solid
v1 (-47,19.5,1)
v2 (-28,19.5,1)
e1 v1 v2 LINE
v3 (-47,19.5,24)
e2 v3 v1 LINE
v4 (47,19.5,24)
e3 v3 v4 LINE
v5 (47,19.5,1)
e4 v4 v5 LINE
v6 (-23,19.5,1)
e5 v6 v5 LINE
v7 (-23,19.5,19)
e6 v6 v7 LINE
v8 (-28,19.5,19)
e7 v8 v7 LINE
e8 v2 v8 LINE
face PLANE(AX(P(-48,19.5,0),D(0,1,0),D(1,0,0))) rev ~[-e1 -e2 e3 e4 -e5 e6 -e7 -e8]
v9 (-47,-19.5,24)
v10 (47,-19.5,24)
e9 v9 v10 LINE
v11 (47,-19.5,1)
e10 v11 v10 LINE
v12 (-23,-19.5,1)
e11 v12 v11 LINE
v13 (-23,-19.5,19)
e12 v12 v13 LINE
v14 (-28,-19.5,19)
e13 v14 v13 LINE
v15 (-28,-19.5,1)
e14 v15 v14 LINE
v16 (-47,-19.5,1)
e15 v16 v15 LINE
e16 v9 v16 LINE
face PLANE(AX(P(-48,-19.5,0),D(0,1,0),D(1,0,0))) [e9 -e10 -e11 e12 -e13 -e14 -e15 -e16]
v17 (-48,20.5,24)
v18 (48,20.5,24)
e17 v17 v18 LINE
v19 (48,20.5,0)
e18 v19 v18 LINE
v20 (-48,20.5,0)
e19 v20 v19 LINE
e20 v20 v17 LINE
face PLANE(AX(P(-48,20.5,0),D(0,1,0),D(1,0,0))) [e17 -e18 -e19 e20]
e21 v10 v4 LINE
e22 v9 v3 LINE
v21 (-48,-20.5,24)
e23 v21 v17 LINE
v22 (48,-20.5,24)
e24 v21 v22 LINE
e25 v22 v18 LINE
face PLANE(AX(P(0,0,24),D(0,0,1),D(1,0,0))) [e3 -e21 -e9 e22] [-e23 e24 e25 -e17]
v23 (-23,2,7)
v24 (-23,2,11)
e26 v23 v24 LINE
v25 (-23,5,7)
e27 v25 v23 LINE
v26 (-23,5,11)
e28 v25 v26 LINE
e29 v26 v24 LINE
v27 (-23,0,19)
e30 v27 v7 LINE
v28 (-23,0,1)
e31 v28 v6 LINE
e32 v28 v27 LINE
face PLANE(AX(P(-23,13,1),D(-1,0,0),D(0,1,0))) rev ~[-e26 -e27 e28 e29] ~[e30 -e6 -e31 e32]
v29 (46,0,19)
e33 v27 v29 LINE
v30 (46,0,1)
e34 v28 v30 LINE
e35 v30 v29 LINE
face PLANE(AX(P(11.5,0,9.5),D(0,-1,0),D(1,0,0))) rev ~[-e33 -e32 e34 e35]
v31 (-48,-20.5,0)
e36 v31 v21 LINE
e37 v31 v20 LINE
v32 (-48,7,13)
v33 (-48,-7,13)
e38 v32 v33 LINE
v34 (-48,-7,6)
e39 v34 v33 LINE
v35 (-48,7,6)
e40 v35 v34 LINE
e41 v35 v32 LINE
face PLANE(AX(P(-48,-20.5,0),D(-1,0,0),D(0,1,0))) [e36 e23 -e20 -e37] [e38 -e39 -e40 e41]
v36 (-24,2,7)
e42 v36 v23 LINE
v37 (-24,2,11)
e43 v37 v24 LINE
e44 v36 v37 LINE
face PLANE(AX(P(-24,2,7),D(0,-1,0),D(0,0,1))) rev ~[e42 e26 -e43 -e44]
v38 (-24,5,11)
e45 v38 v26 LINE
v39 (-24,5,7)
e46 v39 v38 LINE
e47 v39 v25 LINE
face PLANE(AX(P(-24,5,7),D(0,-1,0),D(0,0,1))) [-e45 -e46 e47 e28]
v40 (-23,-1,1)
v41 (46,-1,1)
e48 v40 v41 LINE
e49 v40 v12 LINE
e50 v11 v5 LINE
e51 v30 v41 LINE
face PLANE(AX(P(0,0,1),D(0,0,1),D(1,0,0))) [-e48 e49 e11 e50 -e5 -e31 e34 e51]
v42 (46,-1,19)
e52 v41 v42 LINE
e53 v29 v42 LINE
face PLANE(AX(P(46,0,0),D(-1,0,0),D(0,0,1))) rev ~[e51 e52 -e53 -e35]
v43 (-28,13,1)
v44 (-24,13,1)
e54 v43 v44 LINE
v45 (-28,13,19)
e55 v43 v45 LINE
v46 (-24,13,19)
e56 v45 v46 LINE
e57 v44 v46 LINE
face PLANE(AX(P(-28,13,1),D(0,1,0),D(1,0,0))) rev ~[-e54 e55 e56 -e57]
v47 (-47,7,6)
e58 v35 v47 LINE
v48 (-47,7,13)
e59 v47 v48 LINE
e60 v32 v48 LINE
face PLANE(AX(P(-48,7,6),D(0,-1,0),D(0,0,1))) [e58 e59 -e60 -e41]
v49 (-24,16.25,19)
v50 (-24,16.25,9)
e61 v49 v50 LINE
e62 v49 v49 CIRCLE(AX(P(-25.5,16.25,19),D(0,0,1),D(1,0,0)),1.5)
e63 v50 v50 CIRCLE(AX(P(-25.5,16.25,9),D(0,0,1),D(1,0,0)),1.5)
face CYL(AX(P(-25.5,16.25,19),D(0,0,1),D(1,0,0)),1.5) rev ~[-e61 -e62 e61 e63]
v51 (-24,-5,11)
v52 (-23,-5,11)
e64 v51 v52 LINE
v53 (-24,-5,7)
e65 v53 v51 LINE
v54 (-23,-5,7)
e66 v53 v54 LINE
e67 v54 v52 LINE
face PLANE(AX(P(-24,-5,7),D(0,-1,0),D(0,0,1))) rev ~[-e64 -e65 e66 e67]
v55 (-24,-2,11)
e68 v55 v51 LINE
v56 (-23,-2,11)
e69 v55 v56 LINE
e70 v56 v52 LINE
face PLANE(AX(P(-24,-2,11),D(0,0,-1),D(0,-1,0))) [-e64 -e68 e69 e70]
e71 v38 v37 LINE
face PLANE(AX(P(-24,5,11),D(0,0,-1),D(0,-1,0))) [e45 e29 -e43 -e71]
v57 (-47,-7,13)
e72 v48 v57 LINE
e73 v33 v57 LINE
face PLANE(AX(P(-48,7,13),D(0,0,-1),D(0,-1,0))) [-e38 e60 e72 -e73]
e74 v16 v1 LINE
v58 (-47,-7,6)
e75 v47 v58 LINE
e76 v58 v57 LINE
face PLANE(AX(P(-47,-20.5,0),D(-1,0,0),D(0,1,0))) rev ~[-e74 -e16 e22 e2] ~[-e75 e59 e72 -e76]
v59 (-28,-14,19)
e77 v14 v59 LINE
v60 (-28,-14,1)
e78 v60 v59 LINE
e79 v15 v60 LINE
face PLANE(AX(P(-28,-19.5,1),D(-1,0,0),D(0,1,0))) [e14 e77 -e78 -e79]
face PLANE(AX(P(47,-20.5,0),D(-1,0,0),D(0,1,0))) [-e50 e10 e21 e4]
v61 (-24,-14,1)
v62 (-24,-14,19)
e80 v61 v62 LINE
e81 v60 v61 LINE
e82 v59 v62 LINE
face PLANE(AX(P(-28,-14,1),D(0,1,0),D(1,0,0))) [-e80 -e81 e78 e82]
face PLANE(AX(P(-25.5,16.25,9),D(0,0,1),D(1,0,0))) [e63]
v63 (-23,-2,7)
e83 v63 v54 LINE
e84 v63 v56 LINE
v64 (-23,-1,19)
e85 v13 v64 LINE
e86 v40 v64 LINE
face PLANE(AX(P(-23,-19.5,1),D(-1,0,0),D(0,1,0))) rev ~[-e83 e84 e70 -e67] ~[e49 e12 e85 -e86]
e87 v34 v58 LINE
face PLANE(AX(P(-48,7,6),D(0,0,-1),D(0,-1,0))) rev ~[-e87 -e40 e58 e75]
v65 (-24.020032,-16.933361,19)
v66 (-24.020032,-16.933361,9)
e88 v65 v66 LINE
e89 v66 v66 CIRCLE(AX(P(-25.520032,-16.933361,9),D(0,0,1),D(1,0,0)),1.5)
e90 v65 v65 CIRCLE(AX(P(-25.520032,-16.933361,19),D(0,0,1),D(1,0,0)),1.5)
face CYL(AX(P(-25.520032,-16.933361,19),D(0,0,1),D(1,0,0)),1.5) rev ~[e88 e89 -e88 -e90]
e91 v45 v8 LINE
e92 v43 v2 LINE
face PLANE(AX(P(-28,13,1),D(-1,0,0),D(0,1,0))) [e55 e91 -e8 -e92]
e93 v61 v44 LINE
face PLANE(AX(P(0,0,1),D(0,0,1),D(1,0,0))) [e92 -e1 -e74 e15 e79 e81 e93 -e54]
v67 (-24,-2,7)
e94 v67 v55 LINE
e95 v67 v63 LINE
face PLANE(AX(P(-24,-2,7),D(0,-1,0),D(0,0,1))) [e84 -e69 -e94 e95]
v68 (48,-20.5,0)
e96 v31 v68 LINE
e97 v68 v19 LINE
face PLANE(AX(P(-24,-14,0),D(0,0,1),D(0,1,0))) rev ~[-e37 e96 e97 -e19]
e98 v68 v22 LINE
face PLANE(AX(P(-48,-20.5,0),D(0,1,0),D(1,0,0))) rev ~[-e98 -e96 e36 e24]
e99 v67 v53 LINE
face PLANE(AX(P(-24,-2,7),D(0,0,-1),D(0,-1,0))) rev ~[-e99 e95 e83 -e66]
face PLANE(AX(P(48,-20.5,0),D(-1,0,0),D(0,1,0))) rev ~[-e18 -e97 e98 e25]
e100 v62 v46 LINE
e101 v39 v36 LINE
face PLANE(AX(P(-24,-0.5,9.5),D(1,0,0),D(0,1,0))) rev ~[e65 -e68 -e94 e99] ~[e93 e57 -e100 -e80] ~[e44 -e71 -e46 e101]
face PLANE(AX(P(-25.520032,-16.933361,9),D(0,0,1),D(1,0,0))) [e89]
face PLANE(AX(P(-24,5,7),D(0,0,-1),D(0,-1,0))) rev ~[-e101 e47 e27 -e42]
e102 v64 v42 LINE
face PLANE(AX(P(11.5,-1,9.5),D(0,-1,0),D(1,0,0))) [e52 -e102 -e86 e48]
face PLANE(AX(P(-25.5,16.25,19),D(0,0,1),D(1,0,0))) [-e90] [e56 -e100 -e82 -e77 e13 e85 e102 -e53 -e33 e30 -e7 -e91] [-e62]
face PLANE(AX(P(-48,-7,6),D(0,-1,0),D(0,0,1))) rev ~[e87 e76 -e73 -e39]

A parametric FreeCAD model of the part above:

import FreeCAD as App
import Part
import Sketcher
Q = App.Units.Quantity


def faces_at(feature, points):
    """Names of the faces that lie closest to the given points."""
    faces = feature.Shape.Faces
    near = lambda p: min(range(len(faces)), key=lambda i: faces[i].distToShape(Part.Vertex(*p))[0])
    return sorted({f"Face{near(p) + 1}" for p in points})

doc = App.newDocument("Part")
body = doc.addObject("PartDesign::Body", "Body")

sketch1 = doc.addObject("Sketcher::SketchObject", "Sketch")
body.addObject(sketch1)
sketch1.AttachmentSupport = (doc.XY_Plane, [""])
sketch1.MapMode = "FlatFace"
sketch1.addGeometry(Part.LineSegment(App.Vector(-48, 20, 0), App.Vector(-48, -20, 0)), False)
sketch1.addGeometry(Part.LineSegment(App.Vector(-48, -20, 0), App.Vector(48, -20, 0)), False)
sketch1.addGeometry(Part.LineSegment(App.Vector(48, -20, 0), App.Vector(48, 20, 0)), False)
sketch1.addGeometry(Part.LineSegment(App.Vector(48, 20, 0), App.Vector(-48, 20, 0)), False)
sketch1.addConstraint(Sketcher.Constraint("Coincident", 0, 2, 1, 1))
sketch1.addConstraint(Sketcher.Constraint("Coincident", 1, 2, 2, 1))
sketch1.addConstraint(Sketcher.Constraint("Coincident", 2, 2, 3, 1))
sketch1.addConstraint(Sketcher.Constraint("Coincident", 3, 2, 0, 1))
sketch1.addConstraint(Sketcher.Constraint("Vertical", 0))
sketch1.addConstraint(Sketcher.Constraint("Horizontal", 1))
sketch1.addConstraint(Sketcher.Constraint("Vertical", 2))
sketch1.addConstraint(Sketcher.Constraint("Horizontal", 3))
sketch1.addConstraint(Sketcher.Constraint("Symmetric", 0, 2, 2, 2, -1, 1))
sketch1.addConstraint(Sketcher.Constraint("DistanceX", 1, 1, 1, 2, Q("96 mm")))
sketch1.addConstraint(Sketcher.Constraint("DistanceY", 0, 2, 0, 1, Q("41 mm")))
pad1 = doc.addObject("PartDesign::Pad", "Pad")
body.addObject(pad1)
pad1.Profile = sketch1
pad1.Length = 24
doc.recompute()

thickness = doc.addObject("PartDesign::Thickness", "Thickness")
body.addObject(thickness)
thickness.Base = (pad1, faces_at(pad1, [(0, 0, 24)]))
thickness.Value = 1
thickness.Reversed = True
thickness.Join = "Arc"

sketch2 = doc.addObject("Sketcher::SketchObject", "Sketch001")
body.addObject(sketch2)
sketch2.AttachmentSupport = (doc.XZ_Plane, [""])
sketch2.MapMode = "FlatFace"
sketch2.addGeometry(Part.LineSegment(App.Vector(-23, 19, 0), App.Vector(-23, 0, 0)), False)
sketch2.addGeometry(Part.LineSegment(App.Vector(-23, 0, 0), App.Vector(46, 0, 0)), False)
sketch2.addGeometry(Part.LineSegment(App.Vector(46, 0, 0), App.Vector(46, 19, 0)), False)
sketch2.addGeometry(Part.LineSegment(App.Vector(46, 19, 0), App.Vector(-23, 19, 0)), False)
sketch2.addConstraint(Sketcher.Constraint("Coincident", 0, 2, 1, 1))
sketch2.addConstraint(Sketcher.Constraint("Coincident", 1, 2, 2, 1))
sketch2.addConstraint(Sketcher.Constraint("Coincident", 2, 2, 3, 1))
sketch2.addConstraint(Sketcher.Constraint("Coincident", 3, 2, 0, 1))
sketch2.addConstraint(Sketcher.Constraint("Vertical", 0))
sketch2.addConstraint(Sketcher.Constraint("Horizontal", 1))
sketch2.addConstraint(Sketcher.Constraint("Vertical", 2))
sketch2.addConstraint(Sketcher.Constraint("Horizontal", 3))
sketch2.addConstraint(Sketcher.Constraint("PointOnObject", 0, 2, -1))
sketch2.addConstraint(Sketcher.Constraint("DistanceX", 1, 1, 1, 2, Q("69 mm")))
sketch2.addConstraint(Sketcher.Constraint("DistanceY", 0, 2, 0, 1, Q("19 mm")))
sketch2.addConstraint(Sketcher.Constraint("DistanceX", 0, 2, -1, 1, Q("23 mm")))
pad2 = doc.addObject("PartDesign::Pad", "Pad001")
body.addObject(pad2)
pad2.Profile = sketch2
pad2.Length = 1

sketch3 = doc.addObject("Sketcher::SketchObject", "Sketch002")
body.addObject(sketch3)
sketch3.AttachmentSupport = (doc.YZ_Plane, [""])
sketch3.MapMode = "FlatFace"
sketch3.AttachmentOffset = App.Placement(App.Vector(0, 0, -24), App.Rotation())
sketch3.addGeometry(Part.LineSegment(App.Vector(-14, 19, 0), App.Vector(-14, 0, 0)), False)
sketch3.addGeometry(Part.LineSegment(App.Vector(-14, 0, 0), App.Vector(13, 0, 0)), False)
sketch3.addGeometry(Part.LineSegment(App.Vector(13, 0, 0), App.Vector(13, 19, 0)), False)
sketch3.addGeometry(Part.LineSegment(App.Vector(13, 19, 0), App.Vector(-14, 19, 0)), False)
sketch3.addConstraint(Sketcher.Constraint("Coincident", 0, 2, 1, 1))
sketch3.addConstraint(Sketcher.Constraint("Coincident", 1, 2, 2, 1))
sketch3.addConstraint(Sketcher.Constraint("Coincident", 2, 2, 3, 1))
sketch3.addConstraint(Sketcher.Constraint("Coincident", 3, 2, 0, 1))
sketch3.addConstraint(Sketcher.Constraint("Vertical", 0))
sketch3.addConstraint(Sketcher.Constraint("Horizontal", 1))
sketch3.addConstraint(Sketcher.Constraint("Vertical", 2))
sketch3.addConstraint(Sketcher.Constraint("Horizontal", 3))
sketch3.addConstraint(Sketcher.Constraint("PointOnObject", 0, 2, -1))
sketch3.addConstraint(Sketcher.Constraint("DistanceX", 1, 1, 1, 2, Q("27 mm")))
sketch3.addConstraint(Sketcher.Constraint("DistanceY", 0, 2, 0, 1, Q("19 mm")))
sketch3.addConstraint(Sketcher.Constraint("DistanceX", 0, 2, -1, 1, Q("14 mm")))
pad3 = doc.addObject("PartDesign::Pad", "Pad002")
body.addObject(pad3)
pad3.Profile = sketch3
pad3.Length = 1

sketch4 = doc.addObject("Sketcher::SketchObject", "Sketch003")
body.addObject(sketch4)
sketch4.AttachmentSupport = (doc.YZ_Plane, [""])
sketch4.MapMode = "FlatFace"
sketch4.AttachmentOffset = App.Placement(App.Vector(0, 0, -48), App.Rotation())
sketch4.addGeometry(Part.LineSegment(App.Vector(7, 13, 0), App.Vector(7, 6, 0)), False)
sketch4.addGeometry(Part.LineSegment(App.Vector(7, 6, 0), App.Vector(-7, 6, 0)), False)
sketch4.addGeometry(Part.LineSegment(App.Vector(-7, 6, 0), App.Vector(-7, 13, 0)), False)
sketch4.addGeometry(Part.LineSegment(App.Vector(-7, 13, 0), App.Vector(7, 13, 0)), False)
sketch4.addConstraint(Sketcher.Constraint("Coincident", 0, 2, 1, 1))
sketch4.addConstraint(Sketcher.Constraint("Coincident", 1, 2, 2, 1))
sketch4.addConstraint(Sketcher.Constraint("Coincident", 2, 2, 3, 1))
sketch4.addConstraint(Sketcher.Constraint("Coincident", 3, 2, 0, 1))
sketch4.addConstraint(Sketcher.Constraint("Vertical", 0))
sketch4.addConstraint(Sketcher.Constraint("Horizontal", 1))
sketch4.addConstraint(Sketcher.Constraint("Vertical", 2))
sketch4.addConstraint(Sketcher.Constraint("Horizontal", 3))
sketch4.addConstraint(Sketcher.Constraint("DistanceX", 1, 2, 1, 1, Q("14 mm")))
sketch4.addConstraint(Sketcher.Constraint("DistanceY", 0, 2, 0, 1, Q("7 mm")))
sketch4.addConstraint(Sketcher.Constraint("DistanceX", -1, 1, 0, 2, Q("7 mm")))
sketch4.addConstraint(Sketcher.Constraint("DistanceY", -1, 1, 0, 2, Q("6 mm")))
pocket1 = doc.addObject("PartDesign::Pocket", "Pocket")
body.addObject(pocket1)
pocket1.Profile = sketch4
pocket1.Length = 2
pocket1.Reversed = True

sketch5 = doc.addObject("Sketcher::SketchObject", "Sketch004")
body.addObject(sketch5)
sketch5.AttachmentSupport = (doc.YZ_Plane, [""])
sketch5.MapMode = "FlatFace"
sketch5.AttachmentOffset = App.Placement(App.Vector(0, 0, -24), App.Rotation())
sketch5.addGeometry(Part.LineSegment(App.Vector(5, 11, 0), App.Vector(5, 7, 0)), False)
sketch5.addGeometry(Part.LineSegment(App.Vector(5, 7, 0), App.Vector(2, 7, 0)), False)
sketch5.addGeometry(Part.LineSegment(App.Vector(2, 7, 0), App.Vector(2, 11, 0)), False)
sketch5.addGeometry(Part.LineSegment(App.Vector(2, 11, 0), App.Vector(5, 11, 0)), False)
sketch5.addGeometry(Part.LineSegment(App.Vector(-2, 11, 0), App.Vector(-2, 7, 0)), False)
sketch5.addGeometry(Part.LineSegment(App.Vector(-2, 7, 0), App.Vector(-5, 7, 0)), False)
sketch5.addGeometry(Part.LineSegment(App.Vector(-5, 7, 0), App.Vector(-5, 11, 0)), False)
sketch5.addGeometry(Part.LineSegment(App.Vector(-5, 11, 0), App.Vector(-2, 11, 0)), False)
sketch5.addConstraint(Sketcher.Constraint("Coincident", 0, 2, 1, 1))
sketch5.addConstraint(Sketcher.Constraint("Coincident", 1, 2, 2, 1))
sketch5.addConstraint(Sketcher.Constraint("Coincident", 2, 2, 3, 1))
sketch5.addConstraint(Sketcher.Constraint("Coincident", 3, 2, 0, 1))
sketch5.addConstraint(Sketcher.Constraint("Coincident", 4, 2, 5, 1))
sketch5.addConstraint(Sketcher.Constraint("Coincident", 5, 2, 6, 1))
sketch5.addConstraint(Sketcher.Constraint("Coincident", 6, 2, 7, 1))
sketch5.addConstraint(Sketcher.Constraint("Coincident", 7, 2, 4, 1))
sketch5.addConstraint(Sketcher.Constraint("Vertical", 0))
sketch5.addConstraint(Sketcher.Constraint("Horizontal", 1))
sketch5.addConstraint(Sketcher.Constraint("Vertical", 2))
sketch5.addConstraint(Sketcher.Constraint("Horizontal", 3))
sketch5.addConstraint(Sketcher.Constraint("Vertical", 4))
sketch5.addConstraint(Sketcher.Constraint("Horizontal", 5))
sketch5.addConstraint(Sketcher.Constraint("Vertical", 6))
sketch5.addConstraint(Sketcher.Constraint("Horizontal", 7))
sketch5.addConstraint(Sketcher.Constraint("Symmetric", 1, 2, 4, 2, -2))
sketch5.addConstraint(Sketcher.Constraint("Symmetric", 3, 2, 6, 2, -2))
sketch5.addConstraint(Sketcher.Constraint("DistanceX", 1, 2, 1, 1, Q("3 mm")))
sketch5.addConstraint(Sketcher.Constraint("DistanceY", 0, 2, 0, 1, Q("4 mm")))
sketch5.addConstraint(Sketcher.Constraint("DistanceX", -1, 1, 0, 2, Q("5 mm")))
sketch5.addConstraint(Sketcher.Constraint("DistanceY", -1, 1, 0, 2, Q("7 mm")))
pocket2 = doc.addObject("PartDesign::Pocket", "Pocket001")
body.addObject(pocket2)
pocket2.Profile = sketch5
pocket2.Length = 1
pocket2.Reversed = True

sketch6 = doc.addObject("Sketcher::SketchObject", "Sketch005")
body.addObject(sketch6)
sketch6.AttachmentSupport = (doc.XY_Plane, [""])
sketch6.MapMode = "FlatFace"
sketch6.AttachmentOffset = App.Placement(App.Vector(0, 0, 1), App.Rotation())
sketch6.addGeometry(Part.LineSegment(App.Vector(-28, 20, 0), App.Vector(-28, 13, 0)), False)
sketch6.addGeometry(Part.LineSegment(App.Vector(-28, 13, 0), App.Vector(-23, 13, 0)), False)
sketch6.addGeometry(Part.LineSegment(App.Vector(-23, 13, 0), App.Vector(-23, 20, 0)), False)
sketch6.addGeometry(Part.LineSegment(App.Vector(-23, 20, 0), App.Vector(-28, 20, 0)), False)
sketch6.addGeometry(Part.LineSegment(App.Vector(-28, -14, 0), App.Vector(-28, -20, 0)), False)
sketch6.addGeometry(Part.LineSegment(App.Vector(-28, -20, 0), App.Vector(-23, -20, 0)), False)
sketch6.addGeometry(Part.LineSegment(App.Vector(-23, -20, 0), App.Vector(-23, -14, 0)), False)
sketch6.addGeometry(Part.LineSegment(App.Vector(-23, -14, 0), App.Vector(-28, -14, 0)), False)
sketch6.addConstraint(Sketcher.Constraint("Coincident", 0, 2, 1, 1))
sketch6.addConstraint(Sketcher.Constraint("Coincident", 1, 2, 2, 1))
sketch6.addConstraint(Sketcher.Constraint("Coincident", 2, 2, 3, 1))
sketch6.addConstraint(Sketcher.Constraint("Coincident", 3, 2, 0, 1))
sketch6.addConstraint(Sketcher.Constraint("Coincident", 4, 2, 5, 1))
sketch6.addConstraint(Sketcher.Constraint("Coincident", 5, 2, 6, 1))
sketch6.addConstraint(Sketcher.Constraint("Coincident", 6, 2, 7, 1))
sketch6.addConstraint(Sketcher.Constraint("Coincident", 7, 2, 4, 1))
sketch6.addConstraint(Sketcher.Constraint("Vertical", 0))
sketch6.addConstraint(Sketcher.Constraint("Horizontal", 1))
sketch6.addConstraint(Sketcher.Constraint("Vertical", 2))
sketch6.addConstraint(Sketcher.Constraint("Horizontal", 3))
sketch6.addConstraint(Sketcher.Constraint("Vertical", 4))
sketch6.addConstraint(Sketcher.Constraint("Horizontal", 5))
sketch6.addConstraint(Sketcher.Constraint("Vertical", 6))
sketch6.addConstraint(Sketcher.Constraint("Horizontal", 7))
sketch6.addConstraint(Sketcher.Constraint("Symmetric", 3, 2, 4, 2, -1))
sketch6.addConstraint(Sketcher.Constraint("Vertical", 2, 2, 5, 2))
sketch6.addConstraint(Sketcher.Constraint("DistanceX", 1, 1, 1, 2, Q("5 mm")))
sketch6.addConstraint(Sketcher.Constraint("DistanceY", 0, 2, 0, 1, Q("6.5 mm")))
sketch6.addConstraint(Sketcher.Constraint("DistanceY", 4, 2, 4, 1, Q("5.5 mm")))
sketch6.addConstraint(Sketcher.Constraint("DistanceX", 0, 2, -1, 1, Q("28 mm")))
sketch6.addConstraint(Sketcher.Constraint("DistanceY", -1, 1, 0, 2, Q("13 mm")))
pad4 = doc.addObject("PartDesign::Pad", "Pad003")
body.addObject(pad4)
pad4.Profile = sketch6
pad4.Length = 18

sketch7 = doc.addObject("Sketcher::SketchObject", "Sketch006")
body.addObject(sketch7)
sketch7.AttachmentSupport = (doc.XY_Plane, [""])
sketch7.MapMode = "FlatFace"
sketch7.AttachmentOffset = App.Placement(App.Vector(0, 0, 19), App.Rotation())
sketch7.addGeometry(Part.Circle(App.Vector(-25.5, 16.2, 0), App.Vector(0, 0, 1), 1.5), False)
sketch7.addConstraint(Sketcher.Constraint("Diameter", 0, Q("3 mm")))
sketch7.addConstraint(Sketcher.Constraint("DistanceX", 0, 3, -1, 1, Q("25.5 mm")))
sketch7.addConstraint(Sketcher.Constraint("DistanceY", -1, 1, 0, 3, Q("16.25 mm")))
pocket3 = doc.addObject("PartDesign::Pocket", "Pocket002")
body.addObject(pocket3)
pocket3.Profile = sketch7
pocket3.Length = 10

sketch8 = doc.addObject("Sketcher::SketchObject", "Sketch007")
body.addObject(sketch8)
sketch8.AttachmentSupport = (doc.XY_Plane, [""])
sketch8.MapMode = "FlatFace"
sketch8.AttachmentOffset = App.Placement(App.Vector(0, 0, 19), App.Rotation())
sketch8.addGeometry(Part.Circle(App.Vector(-25.5, 16.2, 0), App.Vector(0, 0, 1), 1.5), False)
sketch8.addGeometry(Part.Circle(App.Vector(-25.5, -16.9, 0), App.Vector(0, 0, 1), 1.5), False)
sketch8.addConstraint(Sketcher.Constraint("Equal", 0, 1))
sketch8.addConstraint(Sketcher.Constraint("Diameter", 0, Q("3 mm")))
sketch8.addConstraint(Sketcher.Constraint("DistanceX", 0, 3, -1, 1, Q("25.5 mm")))
sketch8.addConstraint(Sketcher.Constraint("DistanceY", -1, 1, 0, 3, Q("16.25 mm")))
sketch8.addConstraint(Sketcher.Constraint("DistanceY", 1, 3, -1, 1, Q("16.933361 mm")))
sketch8.addConstraint(Sketcher.Constraint("DistanceX", 1, 3, -1, 1, Q("25.520032 mm")))
pocket4 = doc.addObject("PartDesign::Pocket", "Pocket003")
body.addObject(pocket4)
pocket4.Profile = sketch8
pocket4.Length = 10

doc.recompute()
